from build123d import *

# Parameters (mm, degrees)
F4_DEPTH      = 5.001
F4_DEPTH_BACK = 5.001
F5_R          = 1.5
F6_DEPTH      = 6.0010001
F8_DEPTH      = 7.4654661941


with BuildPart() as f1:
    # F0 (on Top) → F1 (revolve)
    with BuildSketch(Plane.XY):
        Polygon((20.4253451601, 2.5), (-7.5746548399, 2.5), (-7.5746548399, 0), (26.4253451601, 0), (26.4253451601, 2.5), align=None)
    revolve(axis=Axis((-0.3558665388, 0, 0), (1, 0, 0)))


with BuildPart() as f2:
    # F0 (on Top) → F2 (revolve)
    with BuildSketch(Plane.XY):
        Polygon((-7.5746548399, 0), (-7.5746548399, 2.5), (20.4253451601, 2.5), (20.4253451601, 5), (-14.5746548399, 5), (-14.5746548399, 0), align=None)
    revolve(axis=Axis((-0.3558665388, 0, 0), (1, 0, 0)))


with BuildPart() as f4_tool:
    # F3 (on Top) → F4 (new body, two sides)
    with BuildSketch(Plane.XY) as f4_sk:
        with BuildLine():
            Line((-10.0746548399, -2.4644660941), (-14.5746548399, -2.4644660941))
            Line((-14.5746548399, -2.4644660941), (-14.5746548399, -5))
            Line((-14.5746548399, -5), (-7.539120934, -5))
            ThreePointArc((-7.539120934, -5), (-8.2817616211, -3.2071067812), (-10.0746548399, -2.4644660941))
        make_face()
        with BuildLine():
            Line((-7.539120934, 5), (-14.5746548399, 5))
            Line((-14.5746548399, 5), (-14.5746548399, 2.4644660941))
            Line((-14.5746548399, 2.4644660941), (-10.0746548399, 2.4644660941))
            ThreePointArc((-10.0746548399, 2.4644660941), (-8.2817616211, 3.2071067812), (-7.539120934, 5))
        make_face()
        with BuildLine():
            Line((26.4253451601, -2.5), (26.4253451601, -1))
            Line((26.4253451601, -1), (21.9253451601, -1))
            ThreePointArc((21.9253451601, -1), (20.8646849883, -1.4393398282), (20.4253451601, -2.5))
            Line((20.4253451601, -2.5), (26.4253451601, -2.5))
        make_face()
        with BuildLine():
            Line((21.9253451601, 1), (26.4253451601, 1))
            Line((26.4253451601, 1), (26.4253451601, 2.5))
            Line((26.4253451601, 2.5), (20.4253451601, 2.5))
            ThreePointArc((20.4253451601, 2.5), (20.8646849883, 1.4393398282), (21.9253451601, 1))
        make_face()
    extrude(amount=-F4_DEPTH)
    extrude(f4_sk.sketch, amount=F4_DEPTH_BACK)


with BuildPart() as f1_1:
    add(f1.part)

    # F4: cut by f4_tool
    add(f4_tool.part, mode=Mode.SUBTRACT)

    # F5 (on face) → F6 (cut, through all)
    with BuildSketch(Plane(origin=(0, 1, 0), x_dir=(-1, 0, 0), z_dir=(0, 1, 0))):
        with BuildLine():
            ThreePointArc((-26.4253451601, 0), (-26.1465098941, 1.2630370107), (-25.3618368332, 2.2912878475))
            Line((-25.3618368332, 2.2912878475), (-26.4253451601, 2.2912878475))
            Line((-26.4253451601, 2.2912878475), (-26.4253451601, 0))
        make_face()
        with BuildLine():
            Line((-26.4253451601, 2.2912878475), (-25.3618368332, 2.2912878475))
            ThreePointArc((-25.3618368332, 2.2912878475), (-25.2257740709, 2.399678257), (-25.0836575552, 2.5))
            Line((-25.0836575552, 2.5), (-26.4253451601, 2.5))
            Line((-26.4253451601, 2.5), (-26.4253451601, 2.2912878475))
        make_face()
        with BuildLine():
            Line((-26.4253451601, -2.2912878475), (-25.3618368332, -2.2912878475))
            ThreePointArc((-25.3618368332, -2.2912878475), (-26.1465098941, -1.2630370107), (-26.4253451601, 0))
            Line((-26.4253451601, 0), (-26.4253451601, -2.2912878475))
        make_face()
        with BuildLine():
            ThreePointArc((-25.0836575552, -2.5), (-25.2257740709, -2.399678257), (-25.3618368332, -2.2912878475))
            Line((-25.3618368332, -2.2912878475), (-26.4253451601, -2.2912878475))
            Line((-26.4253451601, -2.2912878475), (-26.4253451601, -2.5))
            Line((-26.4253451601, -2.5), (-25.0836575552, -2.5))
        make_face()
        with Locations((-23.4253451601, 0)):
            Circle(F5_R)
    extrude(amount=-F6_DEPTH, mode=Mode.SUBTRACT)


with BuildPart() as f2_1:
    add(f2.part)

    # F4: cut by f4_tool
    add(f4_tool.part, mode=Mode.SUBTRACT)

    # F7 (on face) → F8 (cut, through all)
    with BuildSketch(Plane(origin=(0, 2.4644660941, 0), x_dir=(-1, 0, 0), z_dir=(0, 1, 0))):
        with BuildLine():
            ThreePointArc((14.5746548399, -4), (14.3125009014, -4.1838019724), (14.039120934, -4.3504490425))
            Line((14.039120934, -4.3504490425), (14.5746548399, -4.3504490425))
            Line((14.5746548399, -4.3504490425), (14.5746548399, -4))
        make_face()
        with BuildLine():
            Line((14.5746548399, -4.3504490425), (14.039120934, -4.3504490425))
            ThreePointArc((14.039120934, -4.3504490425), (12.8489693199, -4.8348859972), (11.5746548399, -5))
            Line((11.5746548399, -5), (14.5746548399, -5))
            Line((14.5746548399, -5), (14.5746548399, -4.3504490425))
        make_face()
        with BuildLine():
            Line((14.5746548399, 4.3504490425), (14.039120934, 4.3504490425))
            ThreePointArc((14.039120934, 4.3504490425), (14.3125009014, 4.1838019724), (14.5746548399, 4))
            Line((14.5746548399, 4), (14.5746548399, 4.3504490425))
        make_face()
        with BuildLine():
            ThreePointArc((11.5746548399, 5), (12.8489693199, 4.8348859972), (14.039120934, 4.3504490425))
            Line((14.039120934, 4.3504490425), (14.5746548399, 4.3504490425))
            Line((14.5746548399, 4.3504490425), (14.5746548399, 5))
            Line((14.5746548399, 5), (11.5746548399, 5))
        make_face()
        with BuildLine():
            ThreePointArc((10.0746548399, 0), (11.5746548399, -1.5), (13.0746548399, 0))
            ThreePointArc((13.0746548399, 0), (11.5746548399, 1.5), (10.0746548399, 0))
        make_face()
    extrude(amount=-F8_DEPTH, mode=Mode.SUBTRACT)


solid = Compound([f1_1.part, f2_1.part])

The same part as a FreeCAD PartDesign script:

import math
import FreeCAD as App
import Part
import Sketcher


def add_polygon(sketch, points):
    """Adds a closed chain of lines whose ends are joined by coincident constraints."""
    first, n = sketch.GeometryCount, len(points)
    for a, b in zip(points, points[1:] + points[:1]):
        sketch.addGeometry(Part.LineSegment(App.Vector(*a, 0), App.Vector(*b, 0)), False)
    for i in range(n):
        sketch.addConstraint(Sketcher.Constraint("Coincident", first + i, 2, first + (i + 1) % n, 1))

doc = App.newDocument("Part")
body = doc.addObject("PartDesign::Body", "Body")

sketch1 = doc.addObject("Sketcher::SketchObject", "Sketch")
body.addObject(sketch1)
sketch1.AttachmentSupport = (doc.XY_Plane, [""])
sketch1.MapMode = "FlatFace"
add_polygon(sketch1, [(-7.574655, 2.5), (-7.574655, 0), (26.425345, 0), (26.425345, 2.5)])
sketch1.addConstraint(Sketcher.Constraint("Vertical", 0))
sketch1.addConstraint(Sketcher.Constraint("Horizontal", 1))
sketch1.addConstraint(Sketcher.Constraint("Vertical", 2))
sketch1.addConstraint(Sketcher.Constraint("Horizontal", 3))
sketch1.addConstraint(Sketcher.Constraint("PointOnObject", 0, 2, -1))
sketch1.addConstraint(Sketcher.Constraint("DistanceX", 1, 1, 1, 2, 34.0))
sketch1.addConstraint(Sketcher.Constraint("DistanceY", 0, 2, 0, 1, 2.5))
sketch1.addConstraint(Sketcher.Constraint("DistanceX", 0, 2, -1, 1, 7.574655))
revolution = doc.addObject("PartDesign::Revolution", "Revolution")
body.addObject(revolution)
revolution.Profile = sketch1
revolution.ReferenceAxis = (sketch1, ["H_Axis"])
revolution.Angle = 360
body2 = doc.addObject("PartDesign::Body", "Body001")

sketch2 = doc.addObject("Sketcher::SketchObject", "Sketch001")
body2.addObject(sketch2)
sketch2.AttachmentSupport = (doc.getObject("XY_Plane001"), [""])
sketch2.MapMode = "FlatFace"
add_polygon(sketch2, [(-7.574655, 0), (-7.574655, 2.5), (20.425345, 2.5), (20.425345, 5), (-14.574655, 5), (-14.574655, 0)])
sketch2.addConstraint(Sketcher.Constraint("Vertical", 0))
sketch2.addConstraint(Sketcher.Constraint("Horizontal", 1))
sketch2.addConstraint(Sketcher.Constraint("Vertical", 2))
sketch2.addConstraint(Sketcher.Constraint("Horizontal", 3))
sketch2.addConstraint(Sketcher.Constraint("Vertical", 4))
sketch2.addConstraint(Sketcher.Constraint("Horizontal", 5))
sketch2.addConstraint(Sketcher.Constraint("PointOnObject", 4, 2, -1))
sketch2.addConstraint(Sketcher.Constraint("Equal", 0, 2))
sketch2.addConstraint(Sketcher.Constraint("DistanceX", 1, 1, 1, 2, 28.0))
sketch2.addConstraint(Sketcher.Constraint("DistanceX", 3, 2, 3, 1, 35.0))
sketch2.addConstraint(Sketcher.Constraint("DistanceY", 4, 2, 4, 1, 5.0))
sketch2.addConstraint(Sketcher.Constraint("DistanceX", 0, 2, -1, 1, 7.574655))
revolution2 = doc.addObject("PartDesign::Revolution", "Revolution001")
body2.addObject(revolution2)
revolution2.Profile = sketch2
revolution2.ReferenceAxis = (sketch2, ["H_Axis"])
revolution2.Angle = 360
body3 = doc.addObject("PartDesign::Body", "Body002")
body3.AllowCompound = True

sketch3 = doc.addObject("Sketcher::SketchObject", "Sketch002")
body3.addObject(sketch3)
sketch3.AttachmentSupport = (doc.getObject("XY_Plane002"), [""])
sketch3.MapMode = "FlatFace"
sketch3.addGeometry(Part.LineSegment(App.Vector(-10.074655, -2.464466, 0), App.Vector(-14.574655, -2.464466, 0)), False)
sketch3.addGeometry(Part.LineSegment(App.Vector(-14.574655, -2.464466, 0), App.Vector(-14.574655, -5, 0)), False)
sketch3.addGeometry(Part.LineSegment(App.Vector(-14.574655, -5, 0), App.Vector(-7.539121, -5, 0)), False)
sketch3.addGeometry(Part.ArcOfCircle(Part.Circle(App.Vector(-10.074655, -5, 0), App.Vector(0, 0, 1), 2.535534), math.radians(0), math.radians(90)), False)
sketch3.addGeometry(Part.LineSegment(App.Vector(-7.539121, 5, 0), App.Vector(-14.574655, 5, 0)), False)
sketch3.addGeometry(Part.LineSegment(App.Vector(-14.574655, 5, 0), App.Vector(-14.574655, 2.464466, 0)), False)
sketch3.addGeometry(Part.LineSegment(App.Vector(-14.574655, 2.464466, 0), App.Vector(-10.074655, 2.464466, 0)), False)
sketch3.addGeometry(Part.ArcOfCircle(Part.Circle(App.Vector(-10.074655, 5, 0), App.Vector(0, 0, 1), 2.535534), math.radians(-90), math.radians(0)), False)
sketch3.addGeometry(Part.LineSegment(App.Vector(26.425345, -2.5, 0), App.Vector(26.425345, -1, 0)), False)
sketch3.addGeometry(Part.LineSegment(App.Vector(26.425345, -1, 0), App.Vector(21.925345, -1, 0)), False)
sketch3.addGeometry(Part.ArcOfCircle(Part.Circle(App.Vector(21.925345, -2.5, 0), App.Vector(0, 0, 1), 1.5), math.radians(90), math.radians(180)), False)
sketch3.addGeometry(Part.LineSegment(App.Vector(20.425345, -2.5, 0), App.Vector(26.425345, -2.5, 0)), False)
sketch3.addGeometry(Part.LineSegment(App.Vector(21.925345, 1, 0), App.Vector(26.425345, 1, 0)), False)
sketch3.addGeometry(Part.LineSegment(App.Vector(26.425345, 1, 0), App.Vector(26.425345, 2.5, 0)), False)
sketch3.addGeometry(Part.LineSegment(App.Vector(26.425345, 2.5, 0), App.Vector(20.425345, 2.5, 0)), False)
sketch3.addGeometry(Part.ArcOfCircle(Part.Circle(App.Vector(21.925345, 2.5, 0), App.Vector(0, 0, 1), 1.5), math.radians(180), math.radians(270)), False)
sketch3.addConstraint(Sketcher.Constraint("Coincident", 0, 2, 1, 1))
sketch3.addConstraint(Sketcher.Constraint("Coincident", 1, 2, 2, 1))
sketch3.addConstraint(Sketcher.Constraint("Coincident", 2, 2, 3, 1))
sketch3.addConstraint(Sketcher.Constraint("Tangent", 3, 2, 0, 1))
sketch3.addConstraint(Sketcher.Constraint("Coincident", 4, 2, 5, 1))
sketch3.addConstraint(Sketcher.Constraint("Coincident", 5, 2, 6, 1))
sketch3.addConstraint(Sketcher.Constraint("Tangent", 6, 2, 7, 1))
sketch3.addConstraint(Sketcher.Constraint("Coincident", 7, 2, 4, 1))
sketch3.addConstraint(Sketcher.Constraint("Coincident", 8, 2, 9, 1))
sketch3.addConstraint(Sketcher.Constraint("Tangent", 9, 2, 10, 1))
sketch3.addConstraint(Sketcher.Constraint("Coincident", 10, 2, 11, 1))
sketch3.addConstraint(Sketcher.Constraint("Coincident", 11, 2, 8, 1))
sketch3.addConstraint(Sketcher.Constraint("Coincident", 12, 2, 13, 1))
sketch3.addConstraint(Sketcher.Constraint("Coincident", 13, 2, 14, 1))
sketch3.addConstraint(Sketcher.Constraint("Coincident", 14, 2, 15, 1))
sketch3.addConstraint(Sketcher.Constraint("Tangent", 15, 2, 12, 1))
sketch3.addConstraint(Sketcher.Constraint("Horizontal", 0))
sketch3.addConstraint(Sketcher.Constraint("Vertical", 1))
sketch3.addConstraint(Sketcher.Constraint("Horizontal", 2))
sketch3.addConstraint(Sketcher.Constraint("Horizontal", 4))
sketch3.addConstraint(Sketcher.Constraint("Vertical", 5))
sketch3.addConstraint(Sketcher.Constraint("Horizontal", 6))
sketch3.addConstraint(Sketcher.Constraint("Vertical", 8))
sketch3.addConstraint(Sketcher.Constraint("Horizontal", 9))
sketch3.addConstraint(Sketcher.Constraint("Horizontal", 11))
sketch3.addConstraint(Sketcher.Constraint("Horizontal", 12))
sketch3.addConstraint(Sketcher.Constraint("Vertical", 13))
sketch3.addConstraint(Sketcher.Constraint("Horizontal", 14))
sketch3.addConstraint(Sketcher.Constraint("Equal", 3, 7))
sketch3.addConstraint(Sketcher.Constraint("Equal", 10, 15))
sketch3.addConstraint(Sketcher.Constraint("Symmetric", 3, 3, 7, 3, -1))
sketch3.addConstraint(Sketcher.Constraint("Symmetric", 10, 3, 15, 3, -1))
sketch3.addConstraint(Sketcher.Constraint("Symmetric", 1, 2, 4, 2, -1))
sketch3.addConstraint(Sketcher.Constraint("Symmetric", 11, 2, 13, 2, -1))
sketch3.addConstraint(Sketcher.Constraint("Horizontal", 3, 3, 1, 2))
sketch3.addConstraint(Sketcher.Constraint("Horizontal", 15, 3, 13, 2))
sketch3.addConstraint(Sketcher.Constraint("Equal", 6, 9))
sketch3.addConstraint(Sketcher.Constraint("Radius", 10, 1.5))
sketch3.addConstraint(Sketcher.Constraint("DistanceX", 11, 1, 11, 2, 6.0))
sketch3.addConstraint(Sketcher.Constraint("DistanceY", 3, 3, -1, 1, 5.0))
sketch3.addConstraint(Sketcher.Constraint("DistanceY", 8, 2, -1, 1, 1.0))
sketch3.addConstraint(Sketcher.Constraint("DistanceX", 3, 3, 10, 3, 32.0))
sketch3.addConstraint(Sketcher.Constraint("Radius", 3, 2.535534))
sketch3.addConstraint(Sketcher.Constraint("DistanceX", 2, 2, -1, 1, 7.539121))
pad1 = doc.addObject("PartDesign::Pad", "Pad")
body3.addObject(pad1)
pad1.Profile = sketch3
pad1.Type = "TwoLengths"
pad1.Length = 5.001
pad1.Length2 = 5.001
pad1.Reversed = True
doc.recompute()

body4 = doc.addObject("PartDesign::Body", "Body003")
body4.BaseFeature = body3
boolean = doc.addObject("PartDesign::Boolean", "Boolean")
body.addObject(boolean)
boolean.Type = "Cut"
boolean.addObjects([body4])
doc.recompute()

sketch4 = doc.addObject("Sketcher::SketchObject", "Sketch003")
body.addObject(sketch4)
sketch4.AttachmentSupport = (doc.XZ_Plane, [""])
sketch4.MapMode = "FlatFace"
sketch4.AttachmentOffset = App.Placement(App.Vector(0, 0, -1), App.Rotation())
sketch4.addGeometry(Part.ArcOfCircle(Part.Circle(App.Vector(23.425345, 0, 0), App.Vector(0, 0, 1), 3), math.radians(0), math.radians(49.797034)), False)
sketch4.addGeometry(Part.ArcOfCircle(Part.Circle(App.Vector(23.425345, 0, 0), App.Vector(0, 0, 1), 3), math.radians(49.797034), math.radians(56.44269)), False)
sketch4.addGeometry(Part.LineSegment(App.Vector(25.083658, 2.5, 0), App.Vector(26.425345, 2.5, 0)), False)
sketch4.addGeometry(Part.LineSegment(App.Vector(26.425345, 2.5, 0), App.Vector(26.425345, 0, 0)), False)
sketch4.addGeometry(Part.ArcOfCircle(Part.Circle(App.Vector(23.425345, 0, 0), App.Vector(0, 0, 1), 3), math.radians(-49.797034), math.radians(0)), False)
sketch4.addGeometry(Part.LineSegment(App.Vector(26.425345, 0, 0), App.Vector(26.425345, -2.5, 0)), False)
sketch4.addGeometry(Part.LineSegment(App.Vector(26.425345, -2.5, 0), App.Vector(25.083658, -2.5, 0)), False)
sketch4.addGeometry(Part.ArcOfCircle(Part.Circle(App.Vector(23.425345, 0, 0), App.Vector(0, 0, 1), 3), math.radians(-56.44269), math.radians(-49.797034)), False)
sketch4.addGeometry(Part.Circle(App.Vector(23.425345, 0, 0), App.Vector(0, 0, 1), 1.5), False)
sketch4.addConstraint(Sketcher.Constraint("Tangent", 0, 2, 1, 1))
sketch4.addConstraint(Sketcher.Constraint("Coincident", 1, 2, 2, 1))
sketch4.addConstraint(Sketcher.Constraint("Coincident", 2, 2, 3, 1))
sketch4.addConstraint(Sketcher.Constraint("Tangent", 3, 2, 0, 1))
sketch4.addConstraint(Sketcher.Constraint("Tangent", 4, 2, 5, 1))
sketch4.addConstraint(Sketcher.Constraint("Coincident", 5, 2, 6, 1))
sketch4.addConstraint(Sketcher.Constraint("Coincident", 6, 2, 7, 1))
sketch4.addConstraint(Sketcher.Constraint("Tangent", 7, 2, 4, 1))
sketch4.addConstraint(Sketcher.Constraint("Horizontal", 2))
sketch4.addConstraint(Sketcher.Constraint("Vertical", 3))
sketch4.addConstraint(Sketcher.Constraint("Vertical", 5))
sketch4.addConstraint(Sketcher.Constraint("Horizontal", 6))
sketch4.addConstraint(Sketcher.Constraint("Coincident", 4, 3, 0, 3))
sketch4.addConstraint(Sketcher.Constraint("Coincident", 8, 3, 0, 3))
sketch4.addConstraint(Sketcher.Constraint("Equal", 0, 1))
sketch4.addConstraint(Sketcher.Constraint("Equal", 1, 4))
sketch4.addConstraint(Sketcher.Constraint("Equal", 4, 7))
sketch4.addConstraint(Sketcher.Constraint("Symmetric", 1, 2, 6, 2, -1))
sketch4.addConstraint(Sketcher.Constraint("Vertical", 0, 2, 7, 2))
sketch4.addConstraint(Sketcher.Constraint("Diameter", 8, 3.0))
sketch4.addConstraint(Sketcher.Constraint("Radius", 0, 3.0))
sketch4.addConstraint(Sketcher.Constraint("DistanceY", 3, 2, 3, 1, 2.5))
sketch4.addConstraint(Sketcher.Constraint("DistanceX", 1, 3, 0, 2, 1.936492))
sketch4.addConstraint(Sketcher.Constraint("DistanceX", -1, 1, 0, 3, 23.425345))
pocket1 = doc.addObject("PartDesign::Pocket", "Pocket")
body.addObject(pocket1)
pocket1.Profile = sketch4
pocket1.Type = "ThroughAll"
pocket1.Reversed = True
doc.recompute()

boolean2 = doc.addObject("PartDesign::Boolean", "Boolean001")
body2.addObject(boolean2)
boolean2.Type = "Cut"
boolean2.addObjects([body3])

sketch5 = doc.addObject("Sketcher::SketchObject", "Sketch004")
body2.addObject(sketch5)
sketch5.AttachmentSupport = (doc.getObject("XZ_Plane001"), [""])
sketch5.MapMode = "FlatFace"
sketch5.AttachmentOffset = App.Placement(App.Vector(0, 0, -2.464466), App.Rotation())
sketch5.addGeometry(Part.ArcOfCircle(Part.Circle(App.Vector(-11.574655, 0, 0), App.Vector(0, 0, 1), 5), math.radians(-126.869898), math.radians(-119.530922)), False)
sketch5.addGeometry(Part.ArcOfCircle(Part.Circle(App.Vector(-11.574655, 0, 0), App.Vector(0, 0, 1), 5), math.radians(-119.530922), math.radians(-90)), False)
sketch5.addGeometry(Part.LineSegment(App.Vector(-11.574655, -5, 0), App.Vector(-14.574655, -5, 0)), False)
sketch5.addGeometry(Part.LineSegment(App.Vector(-14.574655, -5, 0), App.Vector(-14.574655, -4, 0)), False)
sketch5.addGeometry(Part.ArcOfCircle(Part.Circle(App.Vector(-11.574655, 0, 0), App.Vector(0, 0, 1), 5), math.radians(119.530922), math.radians(126.869898)), False)
sketch5.addGeometry(Part.LineSegment(App.Vector(-14.574655, 4, 0), App.Vector(-14.574655, 5, 0)), False)
sketch5.addGeometry(Part.LineSegment(App.Vector(-14.574655, 5, 0), App.Vector(-11.574655, 5, 0)), False)
sketch5.addGeometry(Part.ArcOfCircle(Part.Circle(App.Vector(-11.574655, 0, 0), App.Vector(0, 0, 1), 5), math.radians(90), math.radians(119.530922)), False)
sketch5.addGeometry(Part.Circle(App.Vector(-11.574655, 0, 0), App.Vector(0, 0, 1), 1.5), False)
sketch5.addConstraint(Sketcher.Constraint("Tangent", 0, 2, 1, 1))
sketch5.addConstraint(Sketcher.Constraint("Tangent", 1, 2, 2, 1))
sketch5.addConstraint(Sketcher.Constraint("Coincident", 2, 2, 3, 1))
sketch5.addConstraint(Sketcher.Constraint("Coincident", 3, 2, 0, 1))
sketch5.addConstraint(Sketcher.Constraint("Coincident", 4, 2, 5, 1))
sketch5.addConstraint(Sketcher.Constraint("Coincident", 5, 2, 6, 1))
sketch5.addConstraint(Sketcher.Constraint("Tangent", 6, 2, 7, 1))
sketch5.addConstraint(Sketcher.Constraint("Tangent", 7, 2, 4, 1))
sketch5.addConstraint(Sketcher.Constraint("Horizontal", 2))
sketch5.addConstraint(Sketcher.Constraint("Vertical", 3))
sketch5.addConstraint(Sketcher.Constraint("Vertical", 5))
sketch5.addConstraint(Sketcher.Constraint("Horizontal", 6))
sketch5.addConstraint(Sketcher.Constraint("Coincident", 4, 3, 0, 3))
sketch5.addConstraint(Sketcher.Constraint("Coincident", 8, 3, 0, 3))
sketch5.addConstraint(Sketcher.Constraint("Equal", 0, 1))
sketch5.addConstraint(Sketcher.Constraint("Equal", 1, 4))
sketch5.addConstraint(Sketcher.Constraint("Equal", 4, 7))
sketch5.addConstraint(Sketcher.Constraint("Symmetric", 3, 2, 4, 2, -1))
sketch5.addConstraint(Sketcher.Constraint("Vertical", 0, 2, 7, 2))
sketch5.addConstraint(Sketcher.Constraint("Diameter", 8, 3.0))
sketch5.addConstraint(Sketcher.Constraint("Radius", 0, 5.0))
sketch5.addConstraint(Sketcher.Constraint("DistanceX", 2, 2, 2, 1, 3.0))
sketch5.addConstraint(Sketcher.Constraint("DistanceX", 0, 2, -1, 1, 14.039121))
sketch5.addConstraint(Sketcher.Constraint("DistanceY", 0, 2, -1, 1, 4.350449))
pocket2 = doc.addObject("PartDesign::Pocket", "Pocket001")
body2.addObject(pocket2)
pocket2.Profile = sketch5
pocket2.Type = "ThroughAll"
pocket2.Reversed = True

doc.recompute()
